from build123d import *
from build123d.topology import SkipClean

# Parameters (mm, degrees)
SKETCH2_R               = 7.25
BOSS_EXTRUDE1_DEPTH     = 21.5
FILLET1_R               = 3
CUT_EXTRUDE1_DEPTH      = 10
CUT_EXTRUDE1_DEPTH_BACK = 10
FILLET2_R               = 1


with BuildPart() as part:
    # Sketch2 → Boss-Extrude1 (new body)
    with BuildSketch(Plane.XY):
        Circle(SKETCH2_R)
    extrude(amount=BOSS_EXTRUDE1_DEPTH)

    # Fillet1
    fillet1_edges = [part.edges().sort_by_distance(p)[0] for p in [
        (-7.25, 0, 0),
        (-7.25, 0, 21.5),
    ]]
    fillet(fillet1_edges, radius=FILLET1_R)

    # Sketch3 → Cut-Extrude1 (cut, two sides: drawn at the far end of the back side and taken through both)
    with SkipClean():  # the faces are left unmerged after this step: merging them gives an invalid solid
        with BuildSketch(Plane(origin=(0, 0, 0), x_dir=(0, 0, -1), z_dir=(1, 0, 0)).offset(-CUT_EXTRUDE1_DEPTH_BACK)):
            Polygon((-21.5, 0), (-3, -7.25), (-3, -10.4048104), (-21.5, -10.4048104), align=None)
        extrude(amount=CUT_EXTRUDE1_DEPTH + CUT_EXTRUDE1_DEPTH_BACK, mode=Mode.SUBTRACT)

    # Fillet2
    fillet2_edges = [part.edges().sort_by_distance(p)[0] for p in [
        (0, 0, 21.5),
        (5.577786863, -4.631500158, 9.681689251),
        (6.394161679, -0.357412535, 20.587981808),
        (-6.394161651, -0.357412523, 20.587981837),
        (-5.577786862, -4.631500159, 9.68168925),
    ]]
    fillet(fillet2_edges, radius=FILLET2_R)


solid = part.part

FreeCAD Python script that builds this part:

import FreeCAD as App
import Part
import Sketcher
from FreeCAD import Vector


def edges_at(feature, points):
    """Names of the edges that pass closest to the given points."""
    edges = feature.Shape.Edges
    near = lambda p: min(range(len(edges)), key=lambda i: edges[i].distToShape(Part.Vertex(*p))[0])
    return sorted({f"Edge{near(p) + 1}" for p in points})


def add_polygon(sketch, points):
    """Adds a closed chain of lines whose ends are joined by coincident constraints."""
    first, n = sketch.GeometryCount, len(points)
    for a, b in zip(points, points[1:] + points[:1]):
        sketch.addGeometry(Part.LineSegment(App.Vector(*a, 0), App.Vector(*b, 0)), False)
    for i in range(n):
        sketch.addConstraint(Sketcher.Constraint("Coincident", first + i, 2, first + (i + 1) % n, 1))

doc = App.newDocument("Part")
body = doc.addObject("PartDesign::Body", "Body")

# Sketch on XY plane
sketch1 = doc.addObject("Sketcher::SketchObject", "Sketch")
body.addObject(sketch1)
sketch1.AttachmentSupport = (doc.XY_Plane, [""])
sketch1.MapMode = "FlatFace"
sketch1.addGeometry(Part.Circle(Vector(0, 0, 0), Vector(0, 0, 1), 7), False)
sketch1.addConstraint([
    Sketcher.Constraint("Coincident", 0, 3, -1, 1),
    Sketcher.Constraint("Diameter", 0, 14.5),
])
pad1 = doc.addObject("PartDesign::Pad", "Pad")
body.addObject(pad1)
pad1.Profile = sketch1
pad1.Length = 21.5
doc.recompute()

fillet = doc.addObject("PartDesign::Fillet", "Fillet")
body.addObject(fillet)
fillet.Base = (pad1, edges_at(pad1, [(-7.25, 0, 0), (-7.25, 0, 21.5)]))
fillet.Radius = 3

# Sketch on YZ plane
sketch2 = doc.addObject("Sketcher::SketchObject", "Sketch001")
body.addObject(sketch2)
sketch2.AttachmentSupport = (doc.YZ_Plane, [""])
sketch2.MapMode = "FlatFace"
add_polygon(sketch2, [(-7.2, 3), (0, 21.5), (-10.4, 21.5), (-10.4, 3)])  # lines 0-3
sketch2.addConstraint([
    Sketcher.Constraint("Horizontal", 1),
    Sketcher.Constraint("Vertical", 2),
    Sketcher.Constraint("Horizontal", 3),
    Sketcher.Constraint("PointOnObject", 0, 2, -2),
    Sketcher.Constraint("DistanceY", 2, 2, 2, 1, 18.5),
    Sketcher.Constraint("DistanceY", -1, 1, 2, 2, 3.0),
    Sketcher.Constraint("DistanceX", 3, 2, -1, 1, 7.25),
    Sketcher.Constraint("DistanceX", 1, 2, 1, 1, 10.40481),
])
pocket1 = doc.addObject("PartDesign::Pocket", "Pocket")
body.addObject(pocket1)
pocket1.Profile = sketch2
pocket1.Type = "ThroughAll"
pocket1.Midplane = True
doc.recompute()

fillet2 = doc.addObject("PartDesign::Fillet", "Fillet001")
body.addObject(fillet2)
fillet2.Base = (pocket1, edges_at(pocket1, [
    (0, 0, 21.5),
    (5.578, -4.632, 9.682),
    (6.394, -0.357, 20.588),
    (-6.394, -0.357, 20.588),
    (-5.578, -4.632, 9.682),
]))
fillet2.Radius = 1

doc.recompute()
